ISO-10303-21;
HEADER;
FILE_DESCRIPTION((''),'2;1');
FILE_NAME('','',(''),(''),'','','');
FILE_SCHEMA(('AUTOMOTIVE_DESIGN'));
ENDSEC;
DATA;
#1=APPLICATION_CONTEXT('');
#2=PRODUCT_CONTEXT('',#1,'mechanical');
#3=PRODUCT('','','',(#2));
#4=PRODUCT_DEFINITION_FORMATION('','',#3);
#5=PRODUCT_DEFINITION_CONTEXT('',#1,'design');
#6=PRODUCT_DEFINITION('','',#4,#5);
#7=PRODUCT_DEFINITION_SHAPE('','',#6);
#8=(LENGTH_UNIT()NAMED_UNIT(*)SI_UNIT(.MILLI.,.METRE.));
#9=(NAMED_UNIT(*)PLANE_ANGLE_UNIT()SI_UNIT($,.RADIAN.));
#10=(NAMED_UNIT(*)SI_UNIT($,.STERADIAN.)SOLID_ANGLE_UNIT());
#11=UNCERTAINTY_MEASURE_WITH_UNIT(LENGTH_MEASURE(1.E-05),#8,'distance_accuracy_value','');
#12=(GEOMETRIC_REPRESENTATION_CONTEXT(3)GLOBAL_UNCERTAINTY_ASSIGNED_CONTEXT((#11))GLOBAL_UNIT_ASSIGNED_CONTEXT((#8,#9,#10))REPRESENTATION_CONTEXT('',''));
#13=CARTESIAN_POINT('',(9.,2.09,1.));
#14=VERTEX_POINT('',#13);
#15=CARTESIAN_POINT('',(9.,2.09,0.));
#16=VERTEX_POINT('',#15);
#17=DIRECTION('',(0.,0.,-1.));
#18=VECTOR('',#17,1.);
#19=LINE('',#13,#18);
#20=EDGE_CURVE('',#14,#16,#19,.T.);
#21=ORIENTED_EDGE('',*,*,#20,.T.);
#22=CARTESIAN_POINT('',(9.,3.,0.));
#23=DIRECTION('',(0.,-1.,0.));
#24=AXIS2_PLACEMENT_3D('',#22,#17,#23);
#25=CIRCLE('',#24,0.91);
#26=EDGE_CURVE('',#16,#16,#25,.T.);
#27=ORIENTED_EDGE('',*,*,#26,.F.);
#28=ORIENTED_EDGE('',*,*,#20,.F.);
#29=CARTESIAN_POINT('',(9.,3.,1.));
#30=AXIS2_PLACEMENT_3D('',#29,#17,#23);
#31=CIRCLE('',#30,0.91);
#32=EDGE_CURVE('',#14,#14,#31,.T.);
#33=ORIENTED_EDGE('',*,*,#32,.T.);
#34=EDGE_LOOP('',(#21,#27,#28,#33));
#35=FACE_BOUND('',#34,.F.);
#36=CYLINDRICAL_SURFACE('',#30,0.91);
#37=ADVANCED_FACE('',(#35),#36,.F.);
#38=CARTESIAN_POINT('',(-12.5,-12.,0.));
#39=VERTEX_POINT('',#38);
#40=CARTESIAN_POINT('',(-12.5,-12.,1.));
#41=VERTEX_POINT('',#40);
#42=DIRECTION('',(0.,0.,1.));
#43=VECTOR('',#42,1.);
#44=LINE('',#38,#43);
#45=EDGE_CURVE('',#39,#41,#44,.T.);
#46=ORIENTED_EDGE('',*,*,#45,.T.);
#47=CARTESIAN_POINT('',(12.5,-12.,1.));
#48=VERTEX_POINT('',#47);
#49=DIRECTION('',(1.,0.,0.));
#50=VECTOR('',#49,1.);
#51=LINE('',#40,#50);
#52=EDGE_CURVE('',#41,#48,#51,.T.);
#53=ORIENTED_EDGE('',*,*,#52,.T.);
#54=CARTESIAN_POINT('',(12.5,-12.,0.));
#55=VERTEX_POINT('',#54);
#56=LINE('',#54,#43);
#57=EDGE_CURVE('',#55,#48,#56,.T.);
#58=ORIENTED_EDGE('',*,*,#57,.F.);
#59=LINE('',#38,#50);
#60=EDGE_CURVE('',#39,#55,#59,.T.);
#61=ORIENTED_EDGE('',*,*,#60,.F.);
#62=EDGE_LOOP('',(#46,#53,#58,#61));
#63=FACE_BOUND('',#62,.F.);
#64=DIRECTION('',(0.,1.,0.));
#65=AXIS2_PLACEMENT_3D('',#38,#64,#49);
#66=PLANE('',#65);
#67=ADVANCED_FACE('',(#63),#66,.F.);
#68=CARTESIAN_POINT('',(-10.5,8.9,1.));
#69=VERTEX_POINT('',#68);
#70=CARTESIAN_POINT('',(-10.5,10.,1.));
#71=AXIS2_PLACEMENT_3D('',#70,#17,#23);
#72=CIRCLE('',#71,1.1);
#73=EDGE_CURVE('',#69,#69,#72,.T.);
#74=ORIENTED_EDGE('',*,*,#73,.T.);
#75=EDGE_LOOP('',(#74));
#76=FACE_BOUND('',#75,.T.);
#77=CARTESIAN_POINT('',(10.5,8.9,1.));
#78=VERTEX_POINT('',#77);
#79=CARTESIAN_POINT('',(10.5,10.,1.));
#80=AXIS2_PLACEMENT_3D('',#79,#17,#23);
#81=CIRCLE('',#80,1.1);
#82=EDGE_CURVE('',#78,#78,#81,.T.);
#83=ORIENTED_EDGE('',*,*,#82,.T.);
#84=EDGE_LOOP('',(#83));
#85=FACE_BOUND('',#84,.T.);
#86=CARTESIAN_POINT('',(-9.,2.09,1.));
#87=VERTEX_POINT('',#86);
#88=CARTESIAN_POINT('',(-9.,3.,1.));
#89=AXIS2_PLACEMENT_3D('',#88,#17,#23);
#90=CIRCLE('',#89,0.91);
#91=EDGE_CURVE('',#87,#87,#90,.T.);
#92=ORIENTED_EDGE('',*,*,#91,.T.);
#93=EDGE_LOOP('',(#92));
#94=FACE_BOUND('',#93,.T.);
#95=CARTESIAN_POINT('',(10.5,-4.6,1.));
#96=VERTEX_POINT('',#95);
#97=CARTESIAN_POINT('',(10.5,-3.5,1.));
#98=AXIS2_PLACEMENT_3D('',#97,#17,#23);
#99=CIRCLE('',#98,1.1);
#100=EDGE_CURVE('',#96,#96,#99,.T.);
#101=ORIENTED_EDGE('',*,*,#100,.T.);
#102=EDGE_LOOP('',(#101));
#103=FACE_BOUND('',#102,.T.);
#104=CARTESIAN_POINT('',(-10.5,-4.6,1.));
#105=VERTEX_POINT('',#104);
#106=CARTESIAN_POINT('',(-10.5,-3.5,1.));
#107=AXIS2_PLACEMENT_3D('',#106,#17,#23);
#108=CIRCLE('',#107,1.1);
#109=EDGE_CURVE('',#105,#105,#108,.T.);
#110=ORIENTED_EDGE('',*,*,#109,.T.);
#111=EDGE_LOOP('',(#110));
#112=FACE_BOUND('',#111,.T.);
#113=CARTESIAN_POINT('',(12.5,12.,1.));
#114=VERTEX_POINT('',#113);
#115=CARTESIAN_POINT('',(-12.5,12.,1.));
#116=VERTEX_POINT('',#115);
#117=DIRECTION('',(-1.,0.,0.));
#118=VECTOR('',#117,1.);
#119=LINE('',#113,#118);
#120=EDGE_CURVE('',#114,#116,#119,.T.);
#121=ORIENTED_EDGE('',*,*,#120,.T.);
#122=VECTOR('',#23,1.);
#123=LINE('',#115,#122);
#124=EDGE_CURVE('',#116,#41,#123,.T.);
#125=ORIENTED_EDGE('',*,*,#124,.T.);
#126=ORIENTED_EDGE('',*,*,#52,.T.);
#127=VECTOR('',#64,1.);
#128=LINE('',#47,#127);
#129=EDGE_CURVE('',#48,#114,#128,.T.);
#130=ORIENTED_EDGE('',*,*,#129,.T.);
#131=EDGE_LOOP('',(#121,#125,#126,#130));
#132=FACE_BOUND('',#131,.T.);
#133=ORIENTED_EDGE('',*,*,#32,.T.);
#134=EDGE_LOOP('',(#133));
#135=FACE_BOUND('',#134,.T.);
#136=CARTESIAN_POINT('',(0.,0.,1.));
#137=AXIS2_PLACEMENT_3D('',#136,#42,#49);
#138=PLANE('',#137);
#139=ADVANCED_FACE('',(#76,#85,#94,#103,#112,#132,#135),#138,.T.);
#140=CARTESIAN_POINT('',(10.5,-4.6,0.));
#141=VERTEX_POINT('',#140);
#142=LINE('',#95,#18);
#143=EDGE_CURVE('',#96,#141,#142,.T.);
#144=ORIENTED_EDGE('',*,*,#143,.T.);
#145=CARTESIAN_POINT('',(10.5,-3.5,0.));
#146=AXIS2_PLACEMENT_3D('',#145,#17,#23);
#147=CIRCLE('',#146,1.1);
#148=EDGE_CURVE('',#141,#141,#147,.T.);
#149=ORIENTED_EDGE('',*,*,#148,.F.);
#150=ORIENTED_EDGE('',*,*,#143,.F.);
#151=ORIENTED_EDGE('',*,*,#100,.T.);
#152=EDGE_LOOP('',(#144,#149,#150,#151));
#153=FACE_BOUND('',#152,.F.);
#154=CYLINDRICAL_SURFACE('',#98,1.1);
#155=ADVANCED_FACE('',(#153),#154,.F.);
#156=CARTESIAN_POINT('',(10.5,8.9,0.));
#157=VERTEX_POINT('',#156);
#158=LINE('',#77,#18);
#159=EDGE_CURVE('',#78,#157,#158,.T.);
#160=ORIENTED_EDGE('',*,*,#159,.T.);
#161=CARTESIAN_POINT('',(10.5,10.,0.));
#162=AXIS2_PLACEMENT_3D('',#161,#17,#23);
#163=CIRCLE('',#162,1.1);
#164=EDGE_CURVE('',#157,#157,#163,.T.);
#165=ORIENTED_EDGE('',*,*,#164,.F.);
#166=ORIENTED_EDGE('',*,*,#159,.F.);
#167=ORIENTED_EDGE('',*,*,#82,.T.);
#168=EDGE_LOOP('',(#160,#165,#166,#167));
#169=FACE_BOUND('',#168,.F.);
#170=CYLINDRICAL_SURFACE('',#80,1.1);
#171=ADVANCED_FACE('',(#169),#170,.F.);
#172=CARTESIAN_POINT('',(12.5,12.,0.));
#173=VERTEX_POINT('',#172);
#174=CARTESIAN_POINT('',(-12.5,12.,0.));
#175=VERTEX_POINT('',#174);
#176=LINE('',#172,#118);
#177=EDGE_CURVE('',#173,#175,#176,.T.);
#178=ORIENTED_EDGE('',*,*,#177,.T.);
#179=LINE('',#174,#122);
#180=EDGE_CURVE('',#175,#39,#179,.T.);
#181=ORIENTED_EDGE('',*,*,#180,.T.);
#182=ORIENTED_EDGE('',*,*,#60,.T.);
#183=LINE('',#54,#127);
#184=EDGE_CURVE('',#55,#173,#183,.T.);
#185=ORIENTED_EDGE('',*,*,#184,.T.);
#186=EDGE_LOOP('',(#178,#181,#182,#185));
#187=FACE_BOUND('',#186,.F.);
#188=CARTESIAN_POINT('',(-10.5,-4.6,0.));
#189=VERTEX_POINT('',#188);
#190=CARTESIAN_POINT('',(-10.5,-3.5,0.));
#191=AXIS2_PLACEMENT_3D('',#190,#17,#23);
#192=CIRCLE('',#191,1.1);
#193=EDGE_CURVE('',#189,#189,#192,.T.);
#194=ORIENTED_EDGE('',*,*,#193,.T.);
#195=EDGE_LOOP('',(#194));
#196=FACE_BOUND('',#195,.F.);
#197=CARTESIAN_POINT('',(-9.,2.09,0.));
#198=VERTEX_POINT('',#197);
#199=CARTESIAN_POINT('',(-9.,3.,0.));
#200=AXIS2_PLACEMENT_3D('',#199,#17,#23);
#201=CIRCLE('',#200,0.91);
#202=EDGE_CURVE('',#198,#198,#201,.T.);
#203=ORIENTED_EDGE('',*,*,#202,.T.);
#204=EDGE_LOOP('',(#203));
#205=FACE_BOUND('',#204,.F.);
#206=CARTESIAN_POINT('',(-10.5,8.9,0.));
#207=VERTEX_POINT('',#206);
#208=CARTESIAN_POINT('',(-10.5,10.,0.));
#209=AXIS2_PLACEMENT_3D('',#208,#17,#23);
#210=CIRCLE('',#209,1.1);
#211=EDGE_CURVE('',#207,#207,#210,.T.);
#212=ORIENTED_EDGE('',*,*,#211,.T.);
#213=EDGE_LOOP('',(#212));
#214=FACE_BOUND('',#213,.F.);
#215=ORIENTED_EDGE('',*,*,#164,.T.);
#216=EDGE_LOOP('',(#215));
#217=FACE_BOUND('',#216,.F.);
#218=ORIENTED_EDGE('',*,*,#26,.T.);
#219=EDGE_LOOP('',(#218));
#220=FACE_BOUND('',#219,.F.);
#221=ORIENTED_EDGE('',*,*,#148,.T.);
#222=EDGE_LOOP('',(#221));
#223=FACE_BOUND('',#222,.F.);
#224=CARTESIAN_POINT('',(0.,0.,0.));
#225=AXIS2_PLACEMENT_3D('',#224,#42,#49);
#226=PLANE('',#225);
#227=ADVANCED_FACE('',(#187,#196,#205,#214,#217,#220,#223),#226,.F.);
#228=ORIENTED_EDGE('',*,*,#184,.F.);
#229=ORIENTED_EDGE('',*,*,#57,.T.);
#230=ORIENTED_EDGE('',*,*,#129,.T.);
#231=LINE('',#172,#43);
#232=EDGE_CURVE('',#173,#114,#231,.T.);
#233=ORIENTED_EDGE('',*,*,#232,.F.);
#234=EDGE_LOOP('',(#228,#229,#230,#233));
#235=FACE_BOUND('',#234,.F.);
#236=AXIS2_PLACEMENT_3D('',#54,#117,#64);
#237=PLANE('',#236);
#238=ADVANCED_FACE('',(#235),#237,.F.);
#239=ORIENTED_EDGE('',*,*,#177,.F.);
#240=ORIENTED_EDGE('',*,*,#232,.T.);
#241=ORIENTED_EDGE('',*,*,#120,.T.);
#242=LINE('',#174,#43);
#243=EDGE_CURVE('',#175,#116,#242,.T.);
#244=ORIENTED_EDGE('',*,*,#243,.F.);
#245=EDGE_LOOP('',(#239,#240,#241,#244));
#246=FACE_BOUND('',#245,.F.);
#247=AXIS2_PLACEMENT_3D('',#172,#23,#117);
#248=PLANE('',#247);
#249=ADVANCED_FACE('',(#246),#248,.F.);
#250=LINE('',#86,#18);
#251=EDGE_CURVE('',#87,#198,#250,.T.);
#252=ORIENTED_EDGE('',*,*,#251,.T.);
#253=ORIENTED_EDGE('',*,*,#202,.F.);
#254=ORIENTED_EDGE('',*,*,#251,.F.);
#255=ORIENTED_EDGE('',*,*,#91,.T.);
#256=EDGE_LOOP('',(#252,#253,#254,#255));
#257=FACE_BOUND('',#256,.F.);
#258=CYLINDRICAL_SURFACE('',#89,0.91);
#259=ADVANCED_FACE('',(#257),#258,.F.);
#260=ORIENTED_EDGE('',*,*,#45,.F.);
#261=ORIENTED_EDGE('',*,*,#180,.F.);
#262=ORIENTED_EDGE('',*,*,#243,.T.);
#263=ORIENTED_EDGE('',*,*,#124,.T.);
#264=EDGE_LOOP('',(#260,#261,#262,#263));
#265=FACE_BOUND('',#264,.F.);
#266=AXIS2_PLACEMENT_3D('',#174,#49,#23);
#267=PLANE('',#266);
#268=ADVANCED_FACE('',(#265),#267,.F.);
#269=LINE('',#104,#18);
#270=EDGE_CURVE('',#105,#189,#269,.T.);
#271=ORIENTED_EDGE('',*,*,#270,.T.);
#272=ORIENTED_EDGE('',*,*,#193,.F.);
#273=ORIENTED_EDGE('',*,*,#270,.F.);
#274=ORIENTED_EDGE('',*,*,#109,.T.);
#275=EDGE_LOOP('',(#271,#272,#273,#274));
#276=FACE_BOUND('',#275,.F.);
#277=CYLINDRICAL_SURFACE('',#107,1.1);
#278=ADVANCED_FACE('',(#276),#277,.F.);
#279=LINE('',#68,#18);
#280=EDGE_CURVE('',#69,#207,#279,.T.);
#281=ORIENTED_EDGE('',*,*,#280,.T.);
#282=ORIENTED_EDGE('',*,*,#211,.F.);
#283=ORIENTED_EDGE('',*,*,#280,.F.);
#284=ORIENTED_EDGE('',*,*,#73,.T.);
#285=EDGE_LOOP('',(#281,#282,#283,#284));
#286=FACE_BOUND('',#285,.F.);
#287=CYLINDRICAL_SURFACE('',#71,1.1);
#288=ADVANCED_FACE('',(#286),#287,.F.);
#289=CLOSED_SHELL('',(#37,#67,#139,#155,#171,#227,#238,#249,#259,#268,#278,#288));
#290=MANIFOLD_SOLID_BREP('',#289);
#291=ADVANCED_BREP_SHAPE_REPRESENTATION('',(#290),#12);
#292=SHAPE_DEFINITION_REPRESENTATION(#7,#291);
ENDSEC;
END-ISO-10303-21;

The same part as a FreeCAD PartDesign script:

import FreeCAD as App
import Part
import Sketcher
from FreeCAD import Vector


def add_polygon(sketch, points):
    """Adds a closed chain of lines whose ends are joined by coincident constraints."""
    first, n = sketch.GeometryCount, len(points)
    for a, b in zip(points, points[1:] + points[:1]):
        sketch.addGeometry(Part.LineSegment(App.Vector(*a, 0), App.Vector(*b, 0)), False)
    for i in range(n):
        sketch.addConstraint(Sketcher.Constraint("Coincident", first + i, 2, first + (i + 1) % n, 1))

doc = App.newDocument("Part")
body = doc.addObject("PartDesign::Body", "Body")

# Sketch on XY plane
sketch1 = body.newObject("Sketcher::SketchObject", "Sketch")
sketch1.AttachmentSupport = (doc.getObject("XY_Plane"), [""])
sketch1.MapMode = "FlatFace"
add_polygon(sketch1, [(-12.5, 12), (-12.5, -12), (12.5, -12), (12.5, 12)])  # lines 0-3
sketch1.addConstraint([
    Sketcher.Constraint("Vertical", 0),
    Sketcher.Constraint("Horizontal", 1),
    Sketcher.Constraint("Vertical", 2),
    Sketcher.Constraint("Horizontal", 3),
    Sketcher.Constraint("Symmetric", 0, 2, 2, 2, -1, 1),
    Sketcher.Constraint("DistanceX", 1, 1, 1, 2, 25.0),
    Sketcher.Constraint("DistanceY", 0, 2, 0, 1, 24.0),
])
pad1 = body.newObject("PartDesign::Pad", "Pad")
pad1.Profile = sketch1
pad1.Length = 1

# Sketch on XY plane
sketch2 = body.newObject("Sketcher::SketchObject", "Sketch001")
sketch2.AttachmentSupport = (doc.getObject("XY_Plane"), [""])
sketch2.MapMode = "FlatFace"
sketch2.AttachmentOffset = App.Placement(Vector(0, 0, 1), App.Rotation())
sketch2.addGeometry([
    Part.Circle(Vector(-10.5, 10, 0), Vector(0, 0, 1), 1.1),
    Part.Circle(Vector(10.5, 10, 0), Vector(0, 0, 1), 1.1),
    Part.Circle(Vector(10.5, -3.5, 0), Vector(0, 0, 1), 1.1),
    Part.Circle(Vector(-10.5, -3.5, 0), Vector(0, 0, 1), 1.1),
], False)
sketch2.addConstraint([
    Sketcher.Constraint("Equal", 0, 1),
    Sketcher.Constraint("Equal", 1, 2),
    Sketcher.Constraint("Equal", 2, 3),
    Sketcher.Constraint("Symmetric", 0, 3, 1, 3, -2),
    Sketcher.Constraint("Symmetric", 2, 3, 3, 3, -2),
    Sketcher.Constraint("Vertical", 1, 3, 2, 3),
    Sketcher.Constraint("Diameter", 0, 2.2),
    Sketcher.Constraint("DistanceY", -1, 1, 0, 3, 10.0),
    Sketcher.Constraint("DistanceX", 0, 3, 1, 3, 21.0),
    Sketcher.Constraint("DistanceY", 2, 3, -1, 1, 3.5),
])
doc.recompute()
hole = body.newObject("PartDesign::Hole", "Hole")
hole.Profile = sketch2
hole.ThreadType = "None"
hole.Diameter = 2.2
hole.DepthType = "ThroughAll"

# Sketch on XY plane
sketch3 = body.newObject("Sketcher::SketchObject", "Sketch002")
sketch3.AttachmentSupport = (doc.getObject("XY_Plane"), [""])
sketch3.MapMode = "FlatFace"
sketch3.AttachmentOffset = App.Placement(Vector(0, 0, 1), App.Rotation())
sketch3.addGeometry([
    Part.Circle(Vector(-9, 3, 0), Vector(0, 0, 1), 0.91),
    Part.Circle(Vector(9, 3, 0), Vector(0, 0, 1), 0.91),
], False)
sketch3.addConstraint([
    Sketcher.Constraint("Equal", 0, 1),
    Sketcher.Constraint("Symmetric", 0, 3, 1, 3, -2),
    Sketcher.Constraint("Diameter", 0, 1.82),
    Sketcher.Constraint("DistanceX", 0, 3, -1, 1, 9.0),
    Sketcher.Constraint("DistanceY", -1, 1, 0, 3, 3.0),
])
doc.recompute()
hole2 = body.newObject("PartDesign::Hole", "Hole001")
hole2.Profile = sketch3
hole2.ThreadType = "None"
hole2.Diameter = 1.82
hole2.DepthType = "ThroughAll"

doc.recompute()
